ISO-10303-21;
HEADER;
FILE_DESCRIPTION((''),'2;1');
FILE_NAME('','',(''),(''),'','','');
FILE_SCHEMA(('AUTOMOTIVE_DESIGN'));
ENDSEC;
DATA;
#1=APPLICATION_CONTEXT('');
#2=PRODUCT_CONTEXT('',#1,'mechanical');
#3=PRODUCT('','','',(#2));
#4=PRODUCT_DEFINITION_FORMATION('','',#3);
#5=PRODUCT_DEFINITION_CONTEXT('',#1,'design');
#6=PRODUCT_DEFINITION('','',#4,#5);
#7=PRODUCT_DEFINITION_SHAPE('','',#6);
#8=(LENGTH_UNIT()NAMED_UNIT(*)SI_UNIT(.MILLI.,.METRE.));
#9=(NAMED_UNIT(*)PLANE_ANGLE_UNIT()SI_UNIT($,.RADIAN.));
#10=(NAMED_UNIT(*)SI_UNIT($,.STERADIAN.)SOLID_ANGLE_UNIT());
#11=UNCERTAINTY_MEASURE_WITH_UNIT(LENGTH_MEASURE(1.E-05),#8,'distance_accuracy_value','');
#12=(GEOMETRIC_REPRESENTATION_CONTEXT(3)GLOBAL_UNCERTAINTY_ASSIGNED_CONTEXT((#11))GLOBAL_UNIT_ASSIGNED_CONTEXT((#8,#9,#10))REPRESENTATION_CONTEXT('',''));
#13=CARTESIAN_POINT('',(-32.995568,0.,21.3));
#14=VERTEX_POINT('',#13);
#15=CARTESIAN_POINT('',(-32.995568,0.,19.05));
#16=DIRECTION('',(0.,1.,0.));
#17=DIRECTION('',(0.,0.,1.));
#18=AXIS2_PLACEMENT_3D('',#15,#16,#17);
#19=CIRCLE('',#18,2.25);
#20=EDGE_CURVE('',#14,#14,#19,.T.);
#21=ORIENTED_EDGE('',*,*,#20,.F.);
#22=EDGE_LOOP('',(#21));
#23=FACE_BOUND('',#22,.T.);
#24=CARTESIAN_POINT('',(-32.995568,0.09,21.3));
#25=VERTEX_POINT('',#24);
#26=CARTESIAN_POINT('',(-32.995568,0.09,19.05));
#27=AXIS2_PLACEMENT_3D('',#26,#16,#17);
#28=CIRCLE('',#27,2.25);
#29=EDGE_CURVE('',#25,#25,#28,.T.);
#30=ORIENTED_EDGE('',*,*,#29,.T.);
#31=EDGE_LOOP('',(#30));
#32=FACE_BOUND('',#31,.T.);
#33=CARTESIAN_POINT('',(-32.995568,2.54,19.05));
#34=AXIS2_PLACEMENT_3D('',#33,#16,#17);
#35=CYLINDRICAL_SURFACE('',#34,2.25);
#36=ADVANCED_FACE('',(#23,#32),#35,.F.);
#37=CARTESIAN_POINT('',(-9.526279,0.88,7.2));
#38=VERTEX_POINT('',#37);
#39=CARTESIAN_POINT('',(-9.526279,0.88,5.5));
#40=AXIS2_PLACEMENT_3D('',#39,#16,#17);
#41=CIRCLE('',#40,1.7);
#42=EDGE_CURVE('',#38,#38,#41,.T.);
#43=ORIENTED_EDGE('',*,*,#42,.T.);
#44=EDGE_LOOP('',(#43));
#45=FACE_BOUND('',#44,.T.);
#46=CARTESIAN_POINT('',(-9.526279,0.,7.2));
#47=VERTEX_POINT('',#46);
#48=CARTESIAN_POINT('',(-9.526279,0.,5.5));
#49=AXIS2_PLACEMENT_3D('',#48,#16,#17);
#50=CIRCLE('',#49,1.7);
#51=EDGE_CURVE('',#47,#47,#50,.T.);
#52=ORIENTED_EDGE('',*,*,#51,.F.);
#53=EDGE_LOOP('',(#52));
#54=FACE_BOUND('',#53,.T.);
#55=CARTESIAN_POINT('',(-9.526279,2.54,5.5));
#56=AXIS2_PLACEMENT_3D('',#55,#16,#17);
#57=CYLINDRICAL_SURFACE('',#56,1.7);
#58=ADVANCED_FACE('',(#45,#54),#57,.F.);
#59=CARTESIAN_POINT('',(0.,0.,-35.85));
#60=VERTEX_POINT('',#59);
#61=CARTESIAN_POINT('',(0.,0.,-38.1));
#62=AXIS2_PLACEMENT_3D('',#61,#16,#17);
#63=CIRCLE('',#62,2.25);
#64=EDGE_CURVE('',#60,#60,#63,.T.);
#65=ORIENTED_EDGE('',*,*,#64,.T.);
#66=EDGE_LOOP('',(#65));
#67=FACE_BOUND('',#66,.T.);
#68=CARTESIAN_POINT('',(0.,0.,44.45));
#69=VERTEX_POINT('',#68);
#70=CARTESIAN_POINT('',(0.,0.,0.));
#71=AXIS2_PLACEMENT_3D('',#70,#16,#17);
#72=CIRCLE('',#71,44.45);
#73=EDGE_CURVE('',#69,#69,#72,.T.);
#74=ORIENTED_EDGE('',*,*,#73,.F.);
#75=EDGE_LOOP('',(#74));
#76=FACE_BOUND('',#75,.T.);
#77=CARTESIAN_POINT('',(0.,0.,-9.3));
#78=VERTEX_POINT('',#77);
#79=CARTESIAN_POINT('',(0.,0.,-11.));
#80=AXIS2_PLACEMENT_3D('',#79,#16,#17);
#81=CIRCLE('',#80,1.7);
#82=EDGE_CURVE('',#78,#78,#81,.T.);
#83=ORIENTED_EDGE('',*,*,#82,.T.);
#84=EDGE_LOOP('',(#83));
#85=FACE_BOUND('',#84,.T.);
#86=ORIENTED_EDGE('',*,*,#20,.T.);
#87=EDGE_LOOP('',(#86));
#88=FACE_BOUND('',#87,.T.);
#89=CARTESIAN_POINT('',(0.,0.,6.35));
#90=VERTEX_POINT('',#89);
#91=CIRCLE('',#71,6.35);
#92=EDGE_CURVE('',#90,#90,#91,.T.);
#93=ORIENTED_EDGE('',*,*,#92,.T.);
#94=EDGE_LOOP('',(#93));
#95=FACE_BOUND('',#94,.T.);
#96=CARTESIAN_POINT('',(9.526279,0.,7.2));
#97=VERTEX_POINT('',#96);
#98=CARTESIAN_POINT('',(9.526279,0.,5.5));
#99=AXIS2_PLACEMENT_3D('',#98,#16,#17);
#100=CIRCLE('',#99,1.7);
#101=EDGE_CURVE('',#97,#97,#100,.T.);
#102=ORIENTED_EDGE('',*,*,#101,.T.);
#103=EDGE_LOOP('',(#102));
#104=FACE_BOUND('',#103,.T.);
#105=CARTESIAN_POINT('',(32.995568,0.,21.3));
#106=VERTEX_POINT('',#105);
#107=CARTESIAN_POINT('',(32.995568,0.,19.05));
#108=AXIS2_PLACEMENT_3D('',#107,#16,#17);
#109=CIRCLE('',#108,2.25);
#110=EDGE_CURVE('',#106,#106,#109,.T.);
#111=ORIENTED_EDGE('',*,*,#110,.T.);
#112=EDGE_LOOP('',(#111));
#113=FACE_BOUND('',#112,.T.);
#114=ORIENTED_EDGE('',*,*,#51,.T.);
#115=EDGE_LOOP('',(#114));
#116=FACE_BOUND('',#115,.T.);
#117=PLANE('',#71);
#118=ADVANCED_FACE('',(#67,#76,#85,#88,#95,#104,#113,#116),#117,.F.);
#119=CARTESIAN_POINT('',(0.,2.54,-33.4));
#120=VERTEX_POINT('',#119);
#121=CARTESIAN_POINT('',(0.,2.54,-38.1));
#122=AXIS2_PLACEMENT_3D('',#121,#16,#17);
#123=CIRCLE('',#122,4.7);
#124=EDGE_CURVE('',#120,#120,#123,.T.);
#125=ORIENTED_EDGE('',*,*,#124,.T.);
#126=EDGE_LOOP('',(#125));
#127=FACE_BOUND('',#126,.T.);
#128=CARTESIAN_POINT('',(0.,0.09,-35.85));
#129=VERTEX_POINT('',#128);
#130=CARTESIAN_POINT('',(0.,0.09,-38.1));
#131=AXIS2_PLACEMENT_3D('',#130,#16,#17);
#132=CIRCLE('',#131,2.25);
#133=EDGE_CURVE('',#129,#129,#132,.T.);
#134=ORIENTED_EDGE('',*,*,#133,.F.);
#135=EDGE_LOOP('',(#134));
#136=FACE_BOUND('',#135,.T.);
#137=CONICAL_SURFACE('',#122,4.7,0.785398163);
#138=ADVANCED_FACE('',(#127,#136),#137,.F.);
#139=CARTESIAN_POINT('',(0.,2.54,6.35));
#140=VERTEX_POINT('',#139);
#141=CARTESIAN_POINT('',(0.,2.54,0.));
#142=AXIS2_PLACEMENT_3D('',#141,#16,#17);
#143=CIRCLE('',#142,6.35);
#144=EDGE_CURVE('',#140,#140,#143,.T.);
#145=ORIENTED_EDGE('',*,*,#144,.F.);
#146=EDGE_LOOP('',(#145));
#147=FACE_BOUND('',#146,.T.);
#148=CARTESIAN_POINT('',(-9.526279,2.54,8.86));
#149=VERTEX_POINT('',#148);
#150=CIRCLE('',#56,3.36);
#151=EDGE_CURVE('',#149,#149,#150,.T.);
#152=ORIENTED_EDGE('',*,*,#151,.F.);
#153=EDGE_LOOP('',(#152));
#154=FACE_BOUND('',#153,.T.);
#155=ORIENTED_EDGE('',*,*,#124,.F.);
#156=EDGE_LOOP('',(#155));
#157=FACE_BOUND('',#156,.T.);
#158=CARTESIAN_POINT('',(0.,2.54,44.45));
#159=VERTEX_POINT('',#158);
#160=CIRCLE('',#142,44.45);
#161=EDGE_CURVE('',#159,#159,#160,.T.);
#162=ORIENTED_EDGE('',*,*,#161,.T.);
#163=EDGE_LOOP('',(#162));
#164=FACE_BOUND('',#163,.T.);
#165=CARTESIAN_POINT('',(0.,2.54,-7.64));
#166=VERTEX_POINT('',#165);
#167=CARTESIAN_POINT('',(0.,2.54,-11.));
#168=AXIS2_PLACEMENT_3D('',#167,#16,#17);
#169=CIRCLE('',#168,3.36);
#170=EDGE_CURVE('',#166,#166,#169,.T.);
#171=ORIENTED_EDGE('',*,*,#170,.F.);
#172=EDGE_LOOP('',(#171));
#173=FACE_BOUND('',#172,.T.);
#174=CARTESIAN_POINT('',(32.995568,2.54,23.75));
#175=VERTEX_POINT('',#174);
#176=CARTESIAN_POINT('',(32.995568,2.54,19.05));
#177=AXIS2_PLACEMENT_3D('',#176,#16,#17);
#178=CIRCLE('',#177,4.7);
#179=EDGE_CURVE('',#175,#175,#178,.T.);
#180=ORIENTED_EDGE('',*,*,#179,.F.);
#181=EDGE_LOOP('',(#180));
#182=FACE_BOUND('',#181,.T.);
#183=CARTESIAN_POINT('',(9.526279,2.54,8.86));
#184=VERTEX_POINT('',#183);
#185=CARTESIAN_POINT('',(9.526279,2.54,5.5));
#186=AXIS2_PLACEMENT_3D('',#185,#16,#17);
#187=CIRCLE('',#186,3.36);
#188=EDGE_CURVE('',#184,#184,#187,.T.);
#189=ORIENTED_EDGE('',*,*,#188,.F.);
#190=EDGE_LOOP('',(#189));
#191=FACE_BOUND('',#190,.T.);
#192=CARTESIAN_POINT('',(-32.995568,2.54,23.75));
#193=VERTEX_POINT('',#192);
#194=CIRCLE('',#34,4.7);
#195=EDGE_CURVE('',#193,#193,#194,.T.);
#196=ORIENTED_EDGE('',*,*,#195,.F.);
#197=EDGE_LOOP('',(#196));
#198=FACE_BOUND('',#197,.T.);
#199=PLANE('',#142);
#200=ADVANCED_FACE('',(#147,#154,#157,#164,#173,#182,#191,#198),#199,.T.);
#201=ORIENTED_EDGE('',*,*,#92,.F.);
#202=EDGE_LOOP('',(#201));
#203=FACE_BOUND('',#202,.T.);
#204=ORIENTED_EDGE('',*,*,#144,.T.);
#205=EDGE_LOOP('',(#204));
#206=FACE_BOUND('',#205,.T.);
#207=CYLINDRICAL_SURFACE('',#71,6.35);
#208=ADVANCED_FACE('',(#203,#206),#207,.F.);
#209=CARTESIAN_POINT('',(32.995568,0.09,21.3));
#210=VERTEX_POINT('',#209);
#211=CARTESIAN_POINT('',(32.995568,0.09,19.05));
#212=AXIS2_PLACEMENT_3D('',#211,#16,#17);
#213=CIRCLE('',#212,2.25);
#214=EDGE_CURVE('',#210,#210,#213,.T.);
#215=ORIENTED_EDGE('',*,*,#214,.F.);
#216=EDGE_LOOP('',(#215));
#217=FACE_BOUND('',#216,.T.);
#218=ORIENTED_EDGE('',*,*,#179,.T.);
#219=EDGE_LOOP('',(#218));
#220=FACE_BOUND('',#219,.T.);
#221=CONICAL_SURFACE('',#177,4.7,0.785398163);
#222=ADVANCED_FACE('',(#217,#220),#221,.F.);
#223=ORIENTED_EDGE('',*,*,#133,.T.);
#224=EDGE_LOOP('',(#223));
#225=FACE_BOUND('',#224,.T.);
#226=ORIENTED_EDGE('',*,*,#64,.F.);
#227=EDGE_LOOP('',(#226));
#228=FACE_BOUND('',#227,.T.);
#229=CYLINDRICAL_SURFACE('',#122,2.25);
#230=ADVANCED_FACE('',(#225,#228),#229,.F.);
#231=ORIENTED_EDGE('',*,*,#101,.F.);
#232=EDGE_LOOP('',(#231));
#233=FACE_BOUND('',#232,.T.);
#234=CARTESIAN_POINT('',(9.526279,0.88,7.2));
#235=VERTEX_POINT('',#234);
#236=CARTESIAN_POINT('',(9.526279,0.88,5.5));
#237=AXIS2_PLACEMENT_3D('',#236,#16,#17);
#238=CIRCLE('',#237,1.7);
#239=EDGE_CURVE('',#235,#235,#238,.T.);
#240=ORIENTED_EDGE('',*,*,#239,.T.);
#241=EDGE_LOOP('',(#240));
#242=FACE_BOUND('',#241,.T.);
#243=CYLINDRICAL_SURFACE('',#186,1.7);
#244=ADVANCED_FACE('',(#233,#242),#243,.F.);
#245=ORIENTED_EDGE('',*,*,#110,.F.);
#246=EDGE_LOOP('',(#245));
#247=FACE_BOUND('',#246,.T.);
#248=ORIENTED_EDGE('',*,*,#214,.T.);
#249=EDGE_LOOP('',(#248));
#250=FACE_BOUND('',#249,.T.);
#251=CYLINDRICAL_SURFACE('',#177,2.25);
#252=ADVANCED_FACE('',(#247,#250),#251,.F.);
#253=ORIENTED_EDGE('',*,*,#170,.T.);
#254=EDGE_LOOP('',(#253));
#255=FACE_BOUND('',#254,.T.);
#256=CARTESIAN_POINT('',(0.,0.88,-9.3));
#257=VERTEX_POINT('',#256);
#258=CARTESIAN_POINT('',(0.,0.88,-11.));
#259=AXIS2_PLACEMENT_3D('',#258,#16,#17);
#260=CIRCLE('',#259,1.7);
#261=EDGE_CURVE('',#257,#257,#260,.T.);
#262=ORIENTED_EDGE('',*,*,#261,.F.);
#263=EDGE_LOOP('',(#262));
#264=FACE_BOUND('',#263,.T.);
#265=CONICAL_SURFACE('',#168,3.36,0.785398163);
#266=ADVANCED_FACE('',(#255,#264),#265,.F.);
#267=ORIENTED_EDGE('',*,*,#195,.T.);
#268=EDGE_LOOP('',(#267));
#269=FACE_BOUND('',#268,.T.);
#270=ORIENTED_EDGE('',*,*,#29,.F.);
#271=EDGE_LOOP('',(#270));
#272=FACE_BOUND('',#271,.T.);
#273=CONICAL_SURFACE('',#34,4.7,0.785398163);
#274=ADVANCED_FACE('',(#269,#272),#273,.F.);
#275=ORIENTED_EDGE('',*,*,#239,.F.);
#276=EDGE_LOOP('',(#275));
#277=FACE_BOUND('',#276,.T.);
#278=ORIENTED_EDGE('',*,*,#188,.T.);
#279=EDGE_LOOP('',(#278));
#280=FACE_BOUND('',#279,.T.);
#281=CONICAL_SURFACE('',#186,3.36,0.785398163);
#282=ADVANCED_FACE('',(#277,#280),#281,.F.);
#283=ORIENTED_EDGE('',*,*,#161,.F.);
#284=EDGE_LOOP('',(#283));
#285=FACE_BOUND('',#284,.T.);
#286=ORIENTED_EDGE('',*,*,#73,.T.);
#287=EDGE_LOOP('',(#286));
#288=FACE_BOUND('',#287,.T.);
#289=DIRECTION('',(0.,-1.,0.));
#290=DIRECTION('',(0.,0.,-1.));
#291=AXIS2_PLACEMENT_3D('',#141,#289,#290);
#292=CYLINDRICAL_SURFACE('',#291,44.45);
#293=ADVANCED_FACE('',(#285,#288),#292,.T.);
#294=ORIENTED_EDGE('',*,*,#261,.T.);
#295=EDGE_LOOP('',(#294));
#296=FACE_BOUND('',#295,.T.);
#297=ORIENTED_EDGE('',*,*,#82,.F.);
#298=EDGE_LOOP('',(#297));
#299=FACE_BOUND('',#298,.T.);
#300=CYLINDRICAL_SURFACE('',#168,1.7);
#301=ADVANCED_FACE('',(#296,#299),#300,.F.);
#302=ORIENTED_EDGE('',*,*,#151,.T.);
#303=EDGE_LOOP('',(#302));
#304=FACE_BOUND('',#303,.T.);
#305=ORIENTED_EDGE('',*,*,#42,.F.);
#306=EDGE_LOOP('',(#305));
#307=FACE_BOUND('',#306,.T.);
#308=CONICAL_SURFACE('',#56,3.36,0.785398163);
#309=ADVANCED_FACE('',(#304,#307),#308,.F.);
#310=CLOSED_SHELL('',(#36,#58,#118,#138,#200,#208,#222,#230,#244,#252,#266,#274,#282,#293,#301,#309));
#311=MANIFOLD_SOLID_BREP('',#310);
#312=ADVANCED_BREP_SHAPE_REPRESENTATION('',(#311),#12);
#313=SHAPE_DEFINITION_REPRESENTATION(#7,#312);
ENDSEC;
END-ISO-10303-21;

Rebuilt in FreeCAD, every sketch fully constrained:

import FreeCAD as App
import Part
import Sketcher

V = App.Vector
Q = App.Units.Quantity

doc = App.newDocument("Part")
params = doc.addObject("Spreadsheet::Sheet", "Params")
for row, (alias, value) in enumerate([
    ("sketch1_diameter", "3.5 in"),
    ("pad1_length", "0.1 in"),
    ("sketch2_width", "0.1 in"),
    ("groove_angle", "360 deg"),
    ("linearpattern_pitch", "65.991136 mm"),
    ("linearpattern2_pitch", "65.991136 mm"),
    ("sketch3_diameter", "0.5 in"),
    ("sketch4_width", "0.1 in"),
    ("groove2_angle", "360 deg"),
    ("linearpattern3_pitch", "19.052559 mm"),
    ("linearpattern4_pitch", "19.052559 mm"),
], start=1):
    params.set(f"A{row}", alias)
    params.set(f"B{row}", "=" + value)
    params.setAlias(f"B{row}", alias)

body = doc.addObject("PartDesign::Body", "Body")

sketch1 = body.newObject("Sketcher::SketchObject", "Sketch")
sketch1.AttachmentSupport = (doc.getObject("XZ_Plane"), [""])
sketch1.MapMode = "FlatFace"
sketch1.addGeometry(Part.Circle(V(0, 0, 0), V(0, 0, 1), 44.45), False)
sketch1.addConstraint(Sketcher.Constraint("Coincident", 0, 3, -1, 1))
sketch1.addConstraint(Sketcher.Constraint("Diameter", 0, Q("3.5 in")))
sketch1.setExpression("Constraints[1]", "Params.sketch1_diameter")
pad1 = body.newObject("PartDesign::Pad", "Pad")
pad1.Profile = sketch1
pad1.setExpression("Length", "Params.pad1_length")
pad1.Reversed = True

sketch2 = body.newObject("Sketcher::SketchObject", "Sketch001")
sketch2.AttachmentSupport = (doc.getObject("YZ_Plane"), [""])
sketch2.MapMode = "FlatFace"
sketch2.addGeometry(Part.LineSegment(V(0, -38.1, 0), V(2.54, -38.1, 0)), False)
sketch2.addGeometry(Part.LineSegment(V(2.54, -38.1, 0), V(2.54, -33.4, 0)), False)
sketch2.addGeometry(Part.LineSegment(V(2.54, -33.4, 0), V(0.09, -35.85, 0)), False)
sketch2.addGeometry(Part.LineSegment(V(0.09, -35.85, 0), V(0, -35.85, 0)), False)
sketch2.addGeometry(Part.LineSegment(V(0, -35.85, 0), V(0, -38.1, 0)), False)
sketch2.addGeometry(Part.LineSegment(V(2.54, -38.1, 0), V(0, -38.1, 0)), True)
sketch2.addConstraint(Sketcher.Constraint("Coincident", 0, 2, 1, 1))
sketch2.addConstraint(Sketcher.Constraint("Coincident", 1, 2, 2, 1))
sketch2.addConstraint(Sketcher.Constraint("Coincident", 2, 2, 3, 1))
sketch2.addConstraint(Sketcher.Constraint("Coincident", 3, 2, 4, 1))
sketch2.addConstraint(Sketcher.Constraint("Coincident", 4, 2, 0, 1))
sketch2.addConstraint(Sketcher.Constraint("Horizontal", 0))
sketch2.addConstraint(Sketcher.Constraint("Vertical", 1))
sketch2.addConstraint(Sketcher.Constraint("Horizontal", 3))
sketch2.addConstraint(Sketcher.Constraint("Vertical", 4))
sketch2.addConstraint(Sketcher.Constraint("Horizontal", 5))
sketch2.addConstraint(Sketcher.Constraint("Coincident", 5, 1, 0, 2))
sketch2.addConstraint(Sketcher.Constraint("PointOnObject", 3, 2, -2))
sketch2.addConstraint(Sketcher.Constraint("PointOnObject", 5, 2, -2))
sketch2.addConstraint(Sketcher.Constraint("DistanceX", 0, 1, 0, 2, Q("0.1 in")))
sketch2.addConstraint(Sketcher.Constraint("Angle", 2, Q("-135 deg")))
sketch2.addConstraint(Sketcher.Constraint("DistanceY", 0, 2, -1, 1, Q("1.5 in")))
sketch2.addConstraint(Sketcher.Constraint("DistanceX", 3, 2, 3, 1, Q("0.09 mm")))
sketch2.addConstraint(Sketcher.Constraint("DistanceY", 1, 1, 1, 2, Q("4.7 mm")))
sketch2.setExpression("Constraints[13]", "Params.sketch2_width")
groove = body.newObject("PartDesign::Groove", "Groove")
groove.Profile = sketch2
groove.ReferenceAxis = (sketch2, ["Axis0"])
groove.setExpression("Angle", "Params.groove_angle")
doc.recompute()

datumline = body.newObject("PartDesign::Line", "DatumLine")
datumline.Placement = App.Placement(V(0, 0, 0), App.Rotation(V(0, 0, 1), V(-0.5, 0, 0.866025404)))
linearpattern = body.newObject("PartDesign::LinearPattern", "LinearPattern")
linearpattern.Originals = [groove]
linearpattern.Direction = (datumline, [""])
linearpattern.Mode = "offset"
linearpattern.setExpression("Offset", "Params.linearpattern_pitch")
linearpattern.Occurrences = 2
body.Tip = linearpattern
doc.recompute()

datumline2 = body.newObject("PartDesign::Line", "DatumLine001")
datumline2.Placement = App.Placement(V(0, 0, 0), App.Rotation(V(0, 0, 1), V(0.5, 0, 0.866025404)))
linearpattern2 = body.newObject("PartDesign::LinearPattern", "LinearPattern001")
linearpattern2.Originals = [groove]
linearpattern2.Direction = (datumline2, [""])
linearpattern2.Mode = "offset"
linearpattern2.setExpression("Offset", "Params.linearpattern2_pitch")
linearpattern2.Occurrences = 2
body.Tip = linearpattern2

sketch3 = body.newObject("Sketcher::SketchObject", "Sketch002")
sketch3.AttachmentSupport = (doc.getObject("XZ_Plane"), [""])
sketch3.MapMode = "FlatFace"
sketch3.AttachmentOffset = App.Placement(V(0, 0, -0.1 * 25.4), App.Rotation())
sketch3.addGeometry(Part.Circle(V(0, 0, 0), V(0, 0, 1), 6.35), False)
sketch3.addConstraint(Sketcher.Constraint("Coincident", 0, 3, -1, 1))
sketch3.addConstraint(Sketcher.Constraint("Diameter", 0, Q("0.5 in")))
sketch3.setExpression("Constraints[1]", "Params.sketch3_diameter")
pocket1 = body.newObject("PartDesign::Pocket", "Pocket")
pocket1.Profile = sketch3
pocket1.Type = "ThroughAll"
pocket1.Reversed = True

sketch4 = body.newObject("Sketcher::SketchObject", "Sketch003")
sketch4.AttachmentSupport = (doc.getObject("YZ_Plane"), [""])
sketch4.MapMode = "FlatFace"
sketch4.addGeometry(Part.LineSegment(V(0, -11, 0), V(2.54, -11, 0)), False)
sketch4.addGeometry(Part.LineSegment(V(2.54, -11, 0), V(2.54, -7.64, 0)), False)
sketch4.addGeometry(Part.LineSegment(V(2.54, -7.64, 0), V(0.88, -9.3, 0)), False)
sketch4.addGeometry(Part.LineSegment(V(0.88, -9.3, 0), V(0, -9.3, 0)), False)
sketch4.addGeometry(Part.LineSegment(V(0, -9.3, 0), V(0, -11, 0)), False)
sketch4.addGeometry(Part.LineSegment(V(2.54, -11, 0), V(0, -11, 0)), True)
sketch4.addConstraint(Sketcher.Constraint("Coincident", 0, 2, 1, 1))
sketch4.addConstraint(Sketcher.Constraint("Coincident", 1, 2, 2, 1))
sketch4.addConstraint(Sketcher.Constraint("Coincident", 2, 2, 3, 1))
sketch4.addConstraint(Sketcher.Constraint("Coincident", 3, 2, 4, 1))
sketch4.addConstraint(Sketcher.Constraint("Coincident", 4, 2, 0, 1))
sketch4.addConstraint(Sketcher.Constraint("Horizontal", 0))
sketch4.addConstraint(Sketcher.Constraint("Vertical", 1))
sketch4.addConstraint(Sketcher.Constraint("Horizontal", 3))
sketch4.addConstraint(Sketcher.Constraint("Vertical", 4))
sketch4.addConstraint(Sketcher.Constraint("Horizontal", 5))
sketch4.addConstraint(Sketcher.Constraint("Coincident", 5, 1, 0, 2))
sketch4.addConstraint(Sketcher.Constraint("PointOnObject", 3, 2, -2))
sketch4.addConstraint(Sketcher.Constraint("PointOnObject", 5, 2, -2))
sketch4.addConstraint(Sketcher.Constraint("DistanceX", 0, 1, 0, 2, Q("0.1 in")))
sketch4.addConstraint(Sketcher.Constraint("Angle", 2, Q("-135 deg")))
sketch4.addConstraint(Sketcher.Constraint("DistanceX", 3, 2, 3, 1, Q("0.88 mm")))
sketch4.addConstraint(Sketcher.Constraint("DistanceY", 1, 1, 1, 2, Q("3.36 mm")))
sketch4.addConstraint(Sketcher.Constraint("DistanceY", 0, 2, -1, 1, Q("11 mm")))
sketch4.setExpression("Constraints[13]", "Params.sketch4_width")
groove2 = body.newObject("PartDesign::Groove", "Groove001")
groove2.Profile = sketch4
groove2.ReferenceAxis = (sketch4, ["Axis0"])
groove2.setExpression("Angle", "Params.groove2_angle")
doc.recompute()

datumline3 = body.newObject("PartDesign::Line", "DatumLine002")
datumline3.Placement = App.Placement(V(0, 0, 0), App.Rotation(V(0, 0, 1), V(-0.5, 0, 0.866025404)))
linearpattern3 = body.newObject("PartDesign::LinearPattern", "LinearPattern002")
linearpattern3.Originals = [groove2]
linearpattern3.Direction = (datumline3, [""])
linearpattern3.Mode = "offset"
linearpattern3.setExpression("Offset", "Params.linearpattern3_pitch")
linearpattern3.Occurrences = 2
body.Tip = linearpattern3
doc.recompute()

datumline4 = body.newObject("PartDesign::Line", "DatumLine003")
datumline4.Placement = App.Placement(V(0, 0, 0), App.Rotation(V(0, 0, 1), V(0.5, 0, 0.866025404)))
linearpattern4 = body.newObject("PartDesign::LinearPattern", "LinearPattern003")
linearpattern4.Originals = [groove2]
linearpattern4.Direction = (datumline4, [""])
linearpattern4.Mode = "offset"
linearpattern4.setExpression("Offset", "Params.linearpattern4_pitch")
linearpattern4.Occurrences = 2
body.Tip = linearpattern4

doc.recompute()
